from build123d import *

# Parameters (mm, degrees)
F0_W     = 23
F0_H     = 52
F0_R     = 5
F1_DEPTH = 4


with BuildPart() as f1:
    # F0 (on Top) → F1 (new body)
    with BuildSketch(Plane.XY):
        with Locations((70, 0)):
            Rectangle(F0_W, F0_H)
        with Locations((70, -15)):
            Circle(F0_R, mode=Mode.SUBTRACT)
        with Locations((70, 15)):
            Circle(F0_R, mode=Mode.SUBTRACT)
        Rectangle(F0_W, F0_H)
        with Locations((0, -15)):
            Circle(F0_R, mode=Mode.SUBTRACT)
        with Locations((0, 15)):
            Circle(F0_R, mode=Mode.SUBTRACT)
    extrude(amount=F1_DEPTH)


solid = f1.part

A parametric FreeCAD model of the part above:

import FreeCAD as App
import Part
import Sketcher


def add_polygon(sketch, points):
    """Adds a closed chain of lines whose ends are joined by coincident constraints."""
    first, n = sketch.GeometryCount, len(points)
    for a, b in zip(points, points[1:] + points[:1]):
        sketch.addGeometry(Part.LineSegment(App.Vector(*a, 0), App.Vector(*b, 0)), False)
    for i in range(n):
        sketch.addConstraint(Sketcher.Constraint("Coincident", first + i, 2, first + (i + 1) % n, 1))

doc = App.newDocument("Part")
body = doc.addObject("PartDesign::Body", "Body")
body.AllowCompound = True

sketch1 = doc.addObject("Sketcher::SketchObject", "Sketch")
body.addObject(sketch1)
sketch1.AttachmentSupport = (doc.XY_Plane, [""])
sketch1.MapMode = "FlatFace"
add_polygon(sketch1, [(58, 26), (58, -26), (82, -26), (82, 26)])
sketch1.addGeometry(Part.Circle(App.Vector(70, -15, 0), App.Vector(0, 0, 1), 5), False)
sketch1.addGeometry(Part.Circle(App.Vector(70, 15, 0), App.Vector(0, 0, 1), 5), False)
add_polygon(sketch1, [(-12, 26), (-12, -26), (12, -26), (12, 26)])
sketch1.addGeometry(Part.Circle(App.Vector(0, -15, 0), App.Vector(0, 0, 1), 5), False)
sketch1.addGeometry(Part.Circle(App.Vector(0, 15, 0), App.Vector(0, 0, 1), 5), False)
sketch1.addConstraint(Sketcher.Constraint("Vertical", 0))
sketch1.addConstraint(Sketcher.Constraint("Horizontal", 1))
sketch1.addConstraint(Sketcher.Constraint("Vertical", 2))
sketch1.addConstraint(Sketcher.Constraint("Horizontal", 3))
sketch1.addConstraint(Sketcher.Constraint("Vertical", 6))
sketch1.addConstraint(Sketcher.Constraint("Horizontal", 7))
sketch1.addConstraint(Sketcher.Constraint("Vertical", 8))
sketch1.addConstraint(Sketcher.Constraint("Horizontal", 9))
sketch1.addConstraint(Sketcher.Constraint("Equal", 4, 5))
sketch1.addConstraint(Sketcher.Constraint("Equal", 5, 10))
sketch1.addConstraint(Sketcher.Constraint("Equal", 10, 11))
sketch1.addConstraint(Sketcher.Constraint("Symmetric", 10, 3, 11, 3, -1, 1))
sketch1.addConstraint(Sketcher.Constraint("Symmetric", 6, 2, 8, 2, -1, 1))
sketch1.addConstraint(Sketcher.Constraint("Symmetric", 4, 3, 5, 3, -1))
sketch1.addConstraint(Sketcher.Constraint("PointOnObject", 10, 3, -2))
sketch1.addConstraint(Sketcher.Constraint("Horizontal", 4, 3, 10, 3))
sketch1.addConstraint(Sketcher.Constraint("Horizontal", 1, 2, 6, 2))
sketch1.addConstraint(Sketcher.Constraint("Horizontal", 3, 2, 8, 2))
sketch1.addConstraint(Sketcher.Constraint("Equal", 3, 7))
sketch1.addConstraint(Sketcher.Constraint("Diameter", 4, 10.0))
sketch1.addConstraint(Sketcher.Constraint("DistanceX", 1, 1, 1, 2, 23.0))
sketch1.addConstraint(Sketcher.Constraint("DistanceY", 0, 2, 0, 1, 52.0))
sketch1.addConstraint(Sketcher.Constraint("DistanceX", -1, 1, 4, 3, 70.0))
sketch1.addConstraint(Sketcher.Constraint("DistanceY", 4, 3, -1, 1, 15.0))
sketch1.addConstraint(Sketcher.Constraint("DistanceX", 6, 2, 0, 2, 70.0))
pad1 = doc.addObject("PartDesign::Pad", "Pad")
body.addObject(pad1)
pad1.Profile = sketch1
pad1.Length = 4

doc.recompute()
